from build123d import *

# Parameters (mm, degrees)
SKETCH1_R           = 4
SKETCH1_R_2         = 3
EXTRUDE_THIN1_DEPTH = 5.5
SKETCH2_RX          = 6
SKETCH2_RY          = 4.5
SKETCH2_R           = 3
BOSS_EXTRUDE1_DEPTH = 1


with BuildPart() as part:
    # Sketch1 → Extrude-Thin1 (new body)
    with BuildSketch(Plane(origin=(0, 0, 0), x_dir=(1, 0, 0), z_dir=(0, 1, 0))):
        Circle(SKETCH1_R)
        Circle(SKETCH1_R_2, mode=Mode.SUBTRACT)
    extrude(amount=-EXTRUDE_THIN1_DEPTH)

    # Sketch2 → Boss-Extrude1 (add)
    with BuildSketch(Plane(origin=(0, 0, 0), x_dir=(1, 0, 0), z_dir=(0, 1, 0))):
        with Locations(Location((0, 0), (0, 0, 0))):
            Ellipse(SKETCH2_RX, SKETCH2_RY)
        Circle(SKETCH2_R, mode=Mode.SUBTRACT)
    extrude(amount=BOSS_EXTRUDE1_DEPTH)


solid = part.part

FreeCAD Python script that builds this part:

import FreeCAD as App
import Part
import Sketcher
from FreeCAD import Vector

doc = App.newDocument("Part")
body = doc.addObject("PartDesign::Body", "Body")

# Sketch on XZ plane
sketch1 = doc.addObject("Sketcher::SketchObject", "Sketch")
body.addObject(sketch1)
sketch1.AttachmentSupport = (doc.XZ_Plane, [""])
sketch1.MapMode = "FlatFace"
sketch1.addGeometry([
    Part.Circle(Vector(0, 0, 0), Vector(0, 0, 1), 4),
    Part.Circle(Vector(0, 0, 0), Vector(0, 0, 1), 3),
], False)
sketch1.addConstraint([
    Sketcher.Constraint("Coincident", 0, 3, -1, 1),
    Sketcher.Constraint("Coincident", 1, 3, -1, 1),
    Sketcher.Constraint("Diameter", 0, 8.0),
    Sketcher.Constraint("Diameter", 1, 6.0),
])
pad1 = doc.addObject("PartDesign::Pad", "Pad")
body.addObject(pad1)
pad1.Profile = sketch1
pad1.Length = 5.5

# Sketch on XZ plane
sketch2 = doc.addObject("Sketcher::SketchObject", "Sketch001")
body.addObject(sketch2)
sketch2.AttachmentSupport = (doc.XZ_Plane, [""])
sketch2.MapMode = "FlatFace"
sketch2.addGeometry([
    Part.Ellipse(Vector(6, 0, 0), Vector(0, 4.5, 0), Vector(0, 0, 0)),
    Part.Circle(Vector(0, 0, 0), Vector(0, 0, 1), 3),
], False)
sketch2.addConstraint([
    Sketcher.Constraint("Block", 0),
    Sketcher.Constraint("Coincident", 1, 3, -1, 1),
    Sketcher.Constraint("Diameter", 1, 6.0),
])
pad2 = doc.addObject("PartDesign::Pad", "Pad001")
body.addObject(pad2)
pad2.Profile = sketch2
pad2.Length = 1
pad2.Reversed = True

doc.recompute()
